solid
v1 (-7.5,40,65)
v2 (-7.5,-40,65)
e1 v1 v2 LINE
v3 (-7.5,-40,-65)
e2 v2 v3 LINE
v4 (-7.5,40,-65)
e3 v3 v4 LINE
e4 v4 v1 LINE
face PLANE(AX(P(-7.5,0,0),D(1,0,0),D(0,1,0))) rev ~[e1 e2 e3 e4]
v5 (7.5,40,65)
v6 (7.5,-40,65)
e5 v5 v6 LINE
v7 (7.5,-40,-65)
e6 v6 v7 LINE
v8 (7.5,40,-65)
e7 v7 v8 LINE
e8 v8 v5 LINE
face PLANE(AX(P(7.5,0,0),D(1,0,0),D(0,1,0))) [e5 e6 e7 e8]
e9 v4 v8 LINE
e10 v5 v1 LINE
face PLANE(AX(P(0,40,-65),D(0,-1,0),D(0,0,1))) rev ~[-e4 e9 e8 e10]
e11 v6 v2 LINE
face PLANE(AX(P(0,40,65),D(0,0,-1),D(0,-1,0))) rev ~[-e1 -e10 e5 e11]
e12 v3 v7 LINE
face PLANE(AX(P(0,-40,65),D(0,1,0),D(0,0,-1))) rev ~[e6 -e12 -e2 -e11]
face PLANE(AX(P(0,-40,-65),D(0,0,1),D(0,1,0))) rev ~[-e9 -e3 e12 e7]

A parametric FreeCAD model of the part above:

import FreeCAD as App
import Part
import Sketcher

V = App.Vector

doc = App.newDocument("Part")
body = doc.addObject("PartDesign::Body", "Body")

sketch1 = body.newObject("Sketcher::SketchObject", "Sketch")
sketch1.AttachmentSupport = (doc.getObject("YZ_Plane"), [""])
sketch1.MapMode = "FlatFace"
sketch1.addGeometry([
    Part.LineSegment(V(-40, 65, 0), V(-40, -65, 0)),
    Part.LineSegment(V(-40, -65, 0), V(40, -65, 0)),
    Part.LineSegment(V(40, -65, 0), V(40, 65, 0)),
    Part.LineSegment(V(40, 65, 0), V(-40, 65, 0)),
], False)
sketch1.addConstraint([
    Sketcher.Constraint("Coincident", 0, 2, 1, 1),
    Sketcher.Constraint("Coincident", 1, 2, 2, 1),
    Sketcher.Constraint("Coincident", 2, 2, 3, 1),
    Sketcher.Constraint("Coincident", 3, 2, 0, 1),
    Sketcher.Constraint("Vertical", 0),
    Sketcher.Constraint("Horizontal", 1),
    Sketcher.Constraint("Vertical", 2),
    Sketcher.Constraint("Horizontal", 3),
    Sketcher.Constraint("Symmetric", 0, 2, 2, 2, -1, 1),
    Sketcher.Constraint("DistanceX", 1, 1, 1, 2, 80.0),
    Sketcher.Constraint("DistanceY", 0, 2, 0, 1, 130.0),
])
pad1 = body.newObject("PartDesign::Pad", "Pad")
pad1.Profile = sketch1
pad1.Length = 15
pad1.Midplane = True

doc.recompute()
